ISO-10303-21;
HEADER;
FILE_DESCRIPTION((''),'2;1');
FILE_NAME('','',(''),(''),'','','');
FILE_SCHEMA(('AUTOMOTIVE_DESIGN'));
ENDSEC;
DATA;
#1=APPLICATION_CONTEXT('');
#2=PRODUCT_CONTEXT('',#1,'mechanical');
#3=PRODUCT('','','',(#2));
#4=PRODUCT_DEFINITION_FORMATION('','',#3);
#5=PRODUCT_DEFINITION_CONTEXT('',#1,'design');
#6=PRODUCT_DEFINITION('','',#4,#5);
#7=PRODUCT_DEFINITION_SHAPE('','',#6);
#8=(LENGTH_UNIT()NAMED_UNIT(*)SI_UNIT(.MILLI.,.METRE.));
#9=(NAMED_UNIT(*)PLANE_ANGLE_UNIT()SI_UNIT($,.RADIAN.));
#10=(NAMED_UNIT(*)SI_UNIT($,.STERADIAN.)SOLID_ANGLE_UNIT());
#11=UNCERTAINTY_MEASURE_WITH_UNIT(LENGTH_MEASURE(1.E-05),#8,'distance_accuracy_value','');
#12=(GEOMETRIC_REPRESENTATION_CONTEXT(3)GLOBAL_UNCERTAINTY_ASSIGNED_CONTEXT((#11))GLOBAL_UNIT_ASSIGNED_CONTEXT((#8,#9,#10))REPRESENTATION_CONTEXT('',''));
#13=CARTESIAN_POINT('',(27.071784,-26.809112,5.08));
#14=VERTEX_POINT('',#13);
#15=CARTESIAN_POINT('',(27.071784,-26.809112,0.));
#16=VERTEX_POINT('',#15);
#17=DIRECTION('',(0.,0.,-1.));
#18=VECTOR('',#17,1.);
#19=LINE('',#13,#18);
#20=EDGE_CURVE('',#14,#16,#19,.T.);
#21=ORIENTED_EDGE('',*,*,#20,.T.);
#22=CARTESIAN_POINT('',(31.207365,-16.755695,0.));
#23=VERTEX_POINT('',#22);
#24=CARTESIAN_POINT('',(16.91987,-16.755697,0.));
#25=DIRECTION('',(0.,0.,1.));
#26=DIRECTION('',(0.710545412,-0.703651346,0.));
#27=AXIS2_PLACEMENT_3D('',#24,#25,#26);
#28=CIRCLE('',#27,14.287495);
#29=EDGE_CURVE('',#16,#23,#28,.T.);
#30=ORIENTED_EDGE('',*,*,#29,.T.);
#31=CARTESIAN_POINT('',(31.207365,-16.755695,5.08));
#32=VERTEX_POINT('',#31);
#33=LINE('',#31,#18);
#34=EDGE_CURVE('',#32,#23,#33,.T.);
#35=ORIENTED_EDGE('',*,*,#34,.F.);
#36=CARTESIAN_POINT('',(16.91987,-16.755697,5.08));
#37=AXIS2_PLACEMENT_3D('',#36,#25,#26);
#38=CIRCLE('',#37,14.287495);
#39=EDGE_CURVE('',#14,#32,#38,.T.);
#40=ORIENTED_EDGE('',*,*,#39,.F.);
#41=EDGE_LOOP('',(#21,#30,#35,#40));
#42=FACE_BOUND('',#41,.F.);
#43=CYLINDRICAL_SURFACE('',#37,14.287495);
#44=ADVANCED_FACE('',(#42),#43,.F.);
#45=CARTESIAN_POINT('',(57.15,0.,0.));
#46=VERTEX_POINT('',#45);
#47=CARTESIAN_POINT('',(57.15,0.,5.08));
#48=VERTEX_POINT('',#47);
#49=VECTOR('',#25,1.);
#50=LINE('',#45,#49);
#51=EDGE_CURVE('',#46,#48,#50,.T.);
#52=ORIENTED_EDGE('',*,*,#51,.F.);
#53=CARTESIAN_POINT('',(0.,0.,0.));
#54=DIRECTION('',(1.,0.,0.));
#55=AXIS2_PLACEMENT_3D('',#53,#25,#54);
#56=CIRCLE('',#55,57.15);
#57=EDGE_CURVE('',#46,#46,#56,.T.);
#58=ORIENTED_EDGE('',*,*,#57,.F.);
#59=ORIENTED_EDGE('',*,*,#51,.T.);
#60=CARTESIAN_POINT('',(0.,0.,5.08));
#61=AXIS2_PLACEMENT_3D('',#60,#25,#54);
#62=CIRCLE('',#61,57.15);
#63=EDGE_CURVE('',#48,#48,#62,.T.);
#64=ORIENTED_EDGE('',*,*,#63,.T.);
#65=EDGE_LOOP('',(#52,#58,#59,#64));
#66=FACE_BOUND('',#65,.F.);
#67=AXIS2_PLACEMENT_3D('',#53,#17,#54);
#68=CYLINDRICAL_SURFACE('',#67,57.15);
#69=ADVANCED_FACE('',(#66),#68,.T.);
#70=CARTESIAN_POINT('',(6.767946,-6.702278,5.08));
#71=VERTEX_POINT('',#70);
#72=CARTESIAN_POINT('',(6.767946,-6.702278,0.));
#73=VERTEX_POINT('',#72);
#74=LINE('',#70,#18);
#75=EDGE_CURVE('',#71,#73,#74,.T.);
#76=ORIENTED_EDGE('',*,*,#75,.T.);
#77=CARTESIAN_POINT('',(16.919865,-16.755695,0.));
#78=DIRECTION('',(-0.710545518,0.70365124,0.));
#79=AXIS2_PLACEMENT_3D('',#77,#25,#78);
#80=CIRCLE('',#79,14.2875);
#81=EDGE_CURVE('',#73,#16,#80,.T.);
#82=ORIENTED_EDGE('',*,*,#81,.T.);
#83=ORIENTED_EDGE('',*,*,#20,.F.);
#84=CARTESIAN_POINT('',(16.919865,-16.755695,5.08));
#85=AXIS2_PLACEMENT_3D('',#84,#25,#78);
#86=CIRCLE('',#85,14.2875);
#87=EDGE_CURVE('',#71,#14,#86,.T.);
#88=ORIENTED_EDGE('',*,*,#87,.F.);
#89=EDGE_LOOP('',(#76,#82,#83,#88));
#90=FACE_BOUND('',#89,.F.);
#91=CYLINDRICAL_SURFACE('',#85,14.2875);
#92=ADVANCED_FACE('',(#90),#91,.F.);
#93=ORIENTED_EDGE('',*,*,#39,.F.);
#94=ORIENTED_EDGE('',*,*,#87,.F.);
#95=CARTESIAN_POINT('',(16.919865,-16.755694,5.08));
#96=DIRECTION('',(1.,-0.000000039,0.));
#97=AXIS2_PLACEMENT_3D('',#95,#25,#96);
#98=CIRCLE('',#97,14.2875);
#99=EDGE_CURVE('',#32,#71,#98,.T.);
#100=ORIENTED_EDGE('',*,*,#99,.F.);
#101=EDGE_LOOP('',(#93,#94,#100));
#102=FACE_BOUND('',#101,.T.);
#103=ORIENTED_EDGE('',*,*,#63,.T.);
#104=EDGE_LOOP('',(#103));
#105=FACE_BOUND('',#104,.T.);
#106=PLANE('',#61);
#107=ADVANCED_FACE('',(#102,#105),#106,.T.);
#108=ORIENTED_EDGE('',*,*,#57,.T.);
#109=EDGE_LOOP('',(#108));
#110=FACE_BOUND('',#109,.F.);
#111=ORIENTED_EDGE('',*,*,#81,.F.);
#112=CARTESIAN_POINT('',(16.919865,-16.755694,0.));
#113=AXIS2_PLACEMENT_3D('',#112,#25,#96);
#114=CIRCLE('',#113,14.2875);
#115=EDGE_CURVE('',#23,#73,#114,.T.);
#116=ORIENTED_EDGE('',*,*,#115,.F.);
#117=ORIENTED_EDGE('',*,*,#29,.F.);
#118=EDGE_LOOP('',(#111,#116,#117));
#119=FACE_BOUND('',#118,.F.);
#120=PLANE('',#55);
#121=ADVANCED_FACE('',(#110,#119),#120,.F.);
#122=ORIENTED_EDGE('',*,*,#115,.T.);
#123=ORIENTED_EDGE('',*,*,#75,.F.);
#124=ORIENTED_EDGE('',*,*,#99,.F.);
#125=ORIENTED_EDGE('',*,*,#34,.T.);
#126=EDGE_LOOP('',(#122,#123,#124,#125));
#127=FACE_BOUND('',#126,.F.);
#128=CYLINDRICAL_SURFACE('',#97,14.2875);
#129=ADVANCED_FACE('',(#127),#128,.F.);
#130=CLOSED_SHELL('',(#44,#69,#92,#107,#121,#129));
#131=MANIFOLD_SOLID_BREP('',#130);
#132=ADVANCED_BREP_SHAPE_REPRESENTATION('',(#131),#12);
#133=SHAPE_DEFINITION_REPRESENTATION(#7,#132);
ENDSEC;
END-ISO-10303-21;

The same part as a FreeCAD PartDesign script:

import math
import FreeCAD as App
import Part
import Sketcher
from FreeCAD import Vector
Q = App.Units.Quantity

doc = App.newDocument("Part")
body = doc.addObject("PartDesign::Body", "Body")

# Sketch on XY plane
sketch1 = doc.addObject("Sketcher::SketchObject", "Sketch")
body.addObject(sketch1)
sketch1.AttachmentSupport = (doc.XY_Plane, [""])
sketch1.MapMode = "FlatFace"
sketch1.addGeometry(Part.Circle(Vector(0, 0, 0), Vector(0, 0, 1), 57.15), False)
sketch1.addConstraint([
    Sketcher.Constraint("Coincident", 0, 3, -1, 1),
    Sketcher.Constraint("Diameter", 0, Q("4.5 in")),
])
pad1 = doc.addObject("PartDesign::Pad", "Pad")
body.addObject(pad1)
pad1.Profile = sketch1
pad1.Length = Q("0.2 in")

# Sketch on XY plane
sketch2 = doc.addObject("Sketcher::SketchObject", "Sketch001")
body.addObject(sketch2)
sketch2.AttachmentSupport = (doc.XY_Plane, [""])
sketch2.MapMode = "FlatFace"
sketch2.AttachmentOffset = App.Placement(Vector(0, 0, 0.2 * 25.4), App.Rotation())
sketch2.addGeometry([
    Part.ArcOfCircle(Part.Circle(Vector(16.919865, -16.755694, 0), Vector(0, 0, 1), 14.2875), math.radians(-0.000002), math.radians(135.27932)),
    Part.ArcOfCircle(Part.Circle(Vector(16.919865, -16.755695, 0), Vector(0, 0, 1), 14.2875), math.radians(135.279318), math.radians(315.279318)),
    Part.ArcOfCircle(Part.Circle(Vector(16.91987, -16.755697, 0), Vector(0, 0, 1), 14.287495), math.radians(-44.720691), math.radians(0.000007)),
], False)
sketch2.addConstraint([
    Sketcher.Constraint("Tangent", 0, 2, 1, 1),
    Sketcher.Constraint("Tangent", 1, 2, 2, 1),
    Sketcher.Constraint("Tangent", 2, 2, 0, 1),
    Sketcher.Constraint("Horizontal", 1, 3, 2, 2),
    Sketcher.Constraint("Radius", 0, Q("0.5625 in")),
    Sketcher.Constraint("DistanceX", -1, 1, 2, 3, 16.91987),
    Sketcher.Constraint("DistanceX", 0, 2, 0, 3, 10.151919),
    Sketcher.Constraint("DistanceX", 1, 3, 1, 2, 10.151919),
    Sketcher.Constraint("DistanceY", 0, 3, -1, 1, 16.755694),
])
pocket1 = doc.addObject("PartDesign::Pocket", "Pocket")
body.addObject(pocket1)
pocket1.Profile = sketch2
pocket1.Length = Q("0.25 in")

doc.recompute()
